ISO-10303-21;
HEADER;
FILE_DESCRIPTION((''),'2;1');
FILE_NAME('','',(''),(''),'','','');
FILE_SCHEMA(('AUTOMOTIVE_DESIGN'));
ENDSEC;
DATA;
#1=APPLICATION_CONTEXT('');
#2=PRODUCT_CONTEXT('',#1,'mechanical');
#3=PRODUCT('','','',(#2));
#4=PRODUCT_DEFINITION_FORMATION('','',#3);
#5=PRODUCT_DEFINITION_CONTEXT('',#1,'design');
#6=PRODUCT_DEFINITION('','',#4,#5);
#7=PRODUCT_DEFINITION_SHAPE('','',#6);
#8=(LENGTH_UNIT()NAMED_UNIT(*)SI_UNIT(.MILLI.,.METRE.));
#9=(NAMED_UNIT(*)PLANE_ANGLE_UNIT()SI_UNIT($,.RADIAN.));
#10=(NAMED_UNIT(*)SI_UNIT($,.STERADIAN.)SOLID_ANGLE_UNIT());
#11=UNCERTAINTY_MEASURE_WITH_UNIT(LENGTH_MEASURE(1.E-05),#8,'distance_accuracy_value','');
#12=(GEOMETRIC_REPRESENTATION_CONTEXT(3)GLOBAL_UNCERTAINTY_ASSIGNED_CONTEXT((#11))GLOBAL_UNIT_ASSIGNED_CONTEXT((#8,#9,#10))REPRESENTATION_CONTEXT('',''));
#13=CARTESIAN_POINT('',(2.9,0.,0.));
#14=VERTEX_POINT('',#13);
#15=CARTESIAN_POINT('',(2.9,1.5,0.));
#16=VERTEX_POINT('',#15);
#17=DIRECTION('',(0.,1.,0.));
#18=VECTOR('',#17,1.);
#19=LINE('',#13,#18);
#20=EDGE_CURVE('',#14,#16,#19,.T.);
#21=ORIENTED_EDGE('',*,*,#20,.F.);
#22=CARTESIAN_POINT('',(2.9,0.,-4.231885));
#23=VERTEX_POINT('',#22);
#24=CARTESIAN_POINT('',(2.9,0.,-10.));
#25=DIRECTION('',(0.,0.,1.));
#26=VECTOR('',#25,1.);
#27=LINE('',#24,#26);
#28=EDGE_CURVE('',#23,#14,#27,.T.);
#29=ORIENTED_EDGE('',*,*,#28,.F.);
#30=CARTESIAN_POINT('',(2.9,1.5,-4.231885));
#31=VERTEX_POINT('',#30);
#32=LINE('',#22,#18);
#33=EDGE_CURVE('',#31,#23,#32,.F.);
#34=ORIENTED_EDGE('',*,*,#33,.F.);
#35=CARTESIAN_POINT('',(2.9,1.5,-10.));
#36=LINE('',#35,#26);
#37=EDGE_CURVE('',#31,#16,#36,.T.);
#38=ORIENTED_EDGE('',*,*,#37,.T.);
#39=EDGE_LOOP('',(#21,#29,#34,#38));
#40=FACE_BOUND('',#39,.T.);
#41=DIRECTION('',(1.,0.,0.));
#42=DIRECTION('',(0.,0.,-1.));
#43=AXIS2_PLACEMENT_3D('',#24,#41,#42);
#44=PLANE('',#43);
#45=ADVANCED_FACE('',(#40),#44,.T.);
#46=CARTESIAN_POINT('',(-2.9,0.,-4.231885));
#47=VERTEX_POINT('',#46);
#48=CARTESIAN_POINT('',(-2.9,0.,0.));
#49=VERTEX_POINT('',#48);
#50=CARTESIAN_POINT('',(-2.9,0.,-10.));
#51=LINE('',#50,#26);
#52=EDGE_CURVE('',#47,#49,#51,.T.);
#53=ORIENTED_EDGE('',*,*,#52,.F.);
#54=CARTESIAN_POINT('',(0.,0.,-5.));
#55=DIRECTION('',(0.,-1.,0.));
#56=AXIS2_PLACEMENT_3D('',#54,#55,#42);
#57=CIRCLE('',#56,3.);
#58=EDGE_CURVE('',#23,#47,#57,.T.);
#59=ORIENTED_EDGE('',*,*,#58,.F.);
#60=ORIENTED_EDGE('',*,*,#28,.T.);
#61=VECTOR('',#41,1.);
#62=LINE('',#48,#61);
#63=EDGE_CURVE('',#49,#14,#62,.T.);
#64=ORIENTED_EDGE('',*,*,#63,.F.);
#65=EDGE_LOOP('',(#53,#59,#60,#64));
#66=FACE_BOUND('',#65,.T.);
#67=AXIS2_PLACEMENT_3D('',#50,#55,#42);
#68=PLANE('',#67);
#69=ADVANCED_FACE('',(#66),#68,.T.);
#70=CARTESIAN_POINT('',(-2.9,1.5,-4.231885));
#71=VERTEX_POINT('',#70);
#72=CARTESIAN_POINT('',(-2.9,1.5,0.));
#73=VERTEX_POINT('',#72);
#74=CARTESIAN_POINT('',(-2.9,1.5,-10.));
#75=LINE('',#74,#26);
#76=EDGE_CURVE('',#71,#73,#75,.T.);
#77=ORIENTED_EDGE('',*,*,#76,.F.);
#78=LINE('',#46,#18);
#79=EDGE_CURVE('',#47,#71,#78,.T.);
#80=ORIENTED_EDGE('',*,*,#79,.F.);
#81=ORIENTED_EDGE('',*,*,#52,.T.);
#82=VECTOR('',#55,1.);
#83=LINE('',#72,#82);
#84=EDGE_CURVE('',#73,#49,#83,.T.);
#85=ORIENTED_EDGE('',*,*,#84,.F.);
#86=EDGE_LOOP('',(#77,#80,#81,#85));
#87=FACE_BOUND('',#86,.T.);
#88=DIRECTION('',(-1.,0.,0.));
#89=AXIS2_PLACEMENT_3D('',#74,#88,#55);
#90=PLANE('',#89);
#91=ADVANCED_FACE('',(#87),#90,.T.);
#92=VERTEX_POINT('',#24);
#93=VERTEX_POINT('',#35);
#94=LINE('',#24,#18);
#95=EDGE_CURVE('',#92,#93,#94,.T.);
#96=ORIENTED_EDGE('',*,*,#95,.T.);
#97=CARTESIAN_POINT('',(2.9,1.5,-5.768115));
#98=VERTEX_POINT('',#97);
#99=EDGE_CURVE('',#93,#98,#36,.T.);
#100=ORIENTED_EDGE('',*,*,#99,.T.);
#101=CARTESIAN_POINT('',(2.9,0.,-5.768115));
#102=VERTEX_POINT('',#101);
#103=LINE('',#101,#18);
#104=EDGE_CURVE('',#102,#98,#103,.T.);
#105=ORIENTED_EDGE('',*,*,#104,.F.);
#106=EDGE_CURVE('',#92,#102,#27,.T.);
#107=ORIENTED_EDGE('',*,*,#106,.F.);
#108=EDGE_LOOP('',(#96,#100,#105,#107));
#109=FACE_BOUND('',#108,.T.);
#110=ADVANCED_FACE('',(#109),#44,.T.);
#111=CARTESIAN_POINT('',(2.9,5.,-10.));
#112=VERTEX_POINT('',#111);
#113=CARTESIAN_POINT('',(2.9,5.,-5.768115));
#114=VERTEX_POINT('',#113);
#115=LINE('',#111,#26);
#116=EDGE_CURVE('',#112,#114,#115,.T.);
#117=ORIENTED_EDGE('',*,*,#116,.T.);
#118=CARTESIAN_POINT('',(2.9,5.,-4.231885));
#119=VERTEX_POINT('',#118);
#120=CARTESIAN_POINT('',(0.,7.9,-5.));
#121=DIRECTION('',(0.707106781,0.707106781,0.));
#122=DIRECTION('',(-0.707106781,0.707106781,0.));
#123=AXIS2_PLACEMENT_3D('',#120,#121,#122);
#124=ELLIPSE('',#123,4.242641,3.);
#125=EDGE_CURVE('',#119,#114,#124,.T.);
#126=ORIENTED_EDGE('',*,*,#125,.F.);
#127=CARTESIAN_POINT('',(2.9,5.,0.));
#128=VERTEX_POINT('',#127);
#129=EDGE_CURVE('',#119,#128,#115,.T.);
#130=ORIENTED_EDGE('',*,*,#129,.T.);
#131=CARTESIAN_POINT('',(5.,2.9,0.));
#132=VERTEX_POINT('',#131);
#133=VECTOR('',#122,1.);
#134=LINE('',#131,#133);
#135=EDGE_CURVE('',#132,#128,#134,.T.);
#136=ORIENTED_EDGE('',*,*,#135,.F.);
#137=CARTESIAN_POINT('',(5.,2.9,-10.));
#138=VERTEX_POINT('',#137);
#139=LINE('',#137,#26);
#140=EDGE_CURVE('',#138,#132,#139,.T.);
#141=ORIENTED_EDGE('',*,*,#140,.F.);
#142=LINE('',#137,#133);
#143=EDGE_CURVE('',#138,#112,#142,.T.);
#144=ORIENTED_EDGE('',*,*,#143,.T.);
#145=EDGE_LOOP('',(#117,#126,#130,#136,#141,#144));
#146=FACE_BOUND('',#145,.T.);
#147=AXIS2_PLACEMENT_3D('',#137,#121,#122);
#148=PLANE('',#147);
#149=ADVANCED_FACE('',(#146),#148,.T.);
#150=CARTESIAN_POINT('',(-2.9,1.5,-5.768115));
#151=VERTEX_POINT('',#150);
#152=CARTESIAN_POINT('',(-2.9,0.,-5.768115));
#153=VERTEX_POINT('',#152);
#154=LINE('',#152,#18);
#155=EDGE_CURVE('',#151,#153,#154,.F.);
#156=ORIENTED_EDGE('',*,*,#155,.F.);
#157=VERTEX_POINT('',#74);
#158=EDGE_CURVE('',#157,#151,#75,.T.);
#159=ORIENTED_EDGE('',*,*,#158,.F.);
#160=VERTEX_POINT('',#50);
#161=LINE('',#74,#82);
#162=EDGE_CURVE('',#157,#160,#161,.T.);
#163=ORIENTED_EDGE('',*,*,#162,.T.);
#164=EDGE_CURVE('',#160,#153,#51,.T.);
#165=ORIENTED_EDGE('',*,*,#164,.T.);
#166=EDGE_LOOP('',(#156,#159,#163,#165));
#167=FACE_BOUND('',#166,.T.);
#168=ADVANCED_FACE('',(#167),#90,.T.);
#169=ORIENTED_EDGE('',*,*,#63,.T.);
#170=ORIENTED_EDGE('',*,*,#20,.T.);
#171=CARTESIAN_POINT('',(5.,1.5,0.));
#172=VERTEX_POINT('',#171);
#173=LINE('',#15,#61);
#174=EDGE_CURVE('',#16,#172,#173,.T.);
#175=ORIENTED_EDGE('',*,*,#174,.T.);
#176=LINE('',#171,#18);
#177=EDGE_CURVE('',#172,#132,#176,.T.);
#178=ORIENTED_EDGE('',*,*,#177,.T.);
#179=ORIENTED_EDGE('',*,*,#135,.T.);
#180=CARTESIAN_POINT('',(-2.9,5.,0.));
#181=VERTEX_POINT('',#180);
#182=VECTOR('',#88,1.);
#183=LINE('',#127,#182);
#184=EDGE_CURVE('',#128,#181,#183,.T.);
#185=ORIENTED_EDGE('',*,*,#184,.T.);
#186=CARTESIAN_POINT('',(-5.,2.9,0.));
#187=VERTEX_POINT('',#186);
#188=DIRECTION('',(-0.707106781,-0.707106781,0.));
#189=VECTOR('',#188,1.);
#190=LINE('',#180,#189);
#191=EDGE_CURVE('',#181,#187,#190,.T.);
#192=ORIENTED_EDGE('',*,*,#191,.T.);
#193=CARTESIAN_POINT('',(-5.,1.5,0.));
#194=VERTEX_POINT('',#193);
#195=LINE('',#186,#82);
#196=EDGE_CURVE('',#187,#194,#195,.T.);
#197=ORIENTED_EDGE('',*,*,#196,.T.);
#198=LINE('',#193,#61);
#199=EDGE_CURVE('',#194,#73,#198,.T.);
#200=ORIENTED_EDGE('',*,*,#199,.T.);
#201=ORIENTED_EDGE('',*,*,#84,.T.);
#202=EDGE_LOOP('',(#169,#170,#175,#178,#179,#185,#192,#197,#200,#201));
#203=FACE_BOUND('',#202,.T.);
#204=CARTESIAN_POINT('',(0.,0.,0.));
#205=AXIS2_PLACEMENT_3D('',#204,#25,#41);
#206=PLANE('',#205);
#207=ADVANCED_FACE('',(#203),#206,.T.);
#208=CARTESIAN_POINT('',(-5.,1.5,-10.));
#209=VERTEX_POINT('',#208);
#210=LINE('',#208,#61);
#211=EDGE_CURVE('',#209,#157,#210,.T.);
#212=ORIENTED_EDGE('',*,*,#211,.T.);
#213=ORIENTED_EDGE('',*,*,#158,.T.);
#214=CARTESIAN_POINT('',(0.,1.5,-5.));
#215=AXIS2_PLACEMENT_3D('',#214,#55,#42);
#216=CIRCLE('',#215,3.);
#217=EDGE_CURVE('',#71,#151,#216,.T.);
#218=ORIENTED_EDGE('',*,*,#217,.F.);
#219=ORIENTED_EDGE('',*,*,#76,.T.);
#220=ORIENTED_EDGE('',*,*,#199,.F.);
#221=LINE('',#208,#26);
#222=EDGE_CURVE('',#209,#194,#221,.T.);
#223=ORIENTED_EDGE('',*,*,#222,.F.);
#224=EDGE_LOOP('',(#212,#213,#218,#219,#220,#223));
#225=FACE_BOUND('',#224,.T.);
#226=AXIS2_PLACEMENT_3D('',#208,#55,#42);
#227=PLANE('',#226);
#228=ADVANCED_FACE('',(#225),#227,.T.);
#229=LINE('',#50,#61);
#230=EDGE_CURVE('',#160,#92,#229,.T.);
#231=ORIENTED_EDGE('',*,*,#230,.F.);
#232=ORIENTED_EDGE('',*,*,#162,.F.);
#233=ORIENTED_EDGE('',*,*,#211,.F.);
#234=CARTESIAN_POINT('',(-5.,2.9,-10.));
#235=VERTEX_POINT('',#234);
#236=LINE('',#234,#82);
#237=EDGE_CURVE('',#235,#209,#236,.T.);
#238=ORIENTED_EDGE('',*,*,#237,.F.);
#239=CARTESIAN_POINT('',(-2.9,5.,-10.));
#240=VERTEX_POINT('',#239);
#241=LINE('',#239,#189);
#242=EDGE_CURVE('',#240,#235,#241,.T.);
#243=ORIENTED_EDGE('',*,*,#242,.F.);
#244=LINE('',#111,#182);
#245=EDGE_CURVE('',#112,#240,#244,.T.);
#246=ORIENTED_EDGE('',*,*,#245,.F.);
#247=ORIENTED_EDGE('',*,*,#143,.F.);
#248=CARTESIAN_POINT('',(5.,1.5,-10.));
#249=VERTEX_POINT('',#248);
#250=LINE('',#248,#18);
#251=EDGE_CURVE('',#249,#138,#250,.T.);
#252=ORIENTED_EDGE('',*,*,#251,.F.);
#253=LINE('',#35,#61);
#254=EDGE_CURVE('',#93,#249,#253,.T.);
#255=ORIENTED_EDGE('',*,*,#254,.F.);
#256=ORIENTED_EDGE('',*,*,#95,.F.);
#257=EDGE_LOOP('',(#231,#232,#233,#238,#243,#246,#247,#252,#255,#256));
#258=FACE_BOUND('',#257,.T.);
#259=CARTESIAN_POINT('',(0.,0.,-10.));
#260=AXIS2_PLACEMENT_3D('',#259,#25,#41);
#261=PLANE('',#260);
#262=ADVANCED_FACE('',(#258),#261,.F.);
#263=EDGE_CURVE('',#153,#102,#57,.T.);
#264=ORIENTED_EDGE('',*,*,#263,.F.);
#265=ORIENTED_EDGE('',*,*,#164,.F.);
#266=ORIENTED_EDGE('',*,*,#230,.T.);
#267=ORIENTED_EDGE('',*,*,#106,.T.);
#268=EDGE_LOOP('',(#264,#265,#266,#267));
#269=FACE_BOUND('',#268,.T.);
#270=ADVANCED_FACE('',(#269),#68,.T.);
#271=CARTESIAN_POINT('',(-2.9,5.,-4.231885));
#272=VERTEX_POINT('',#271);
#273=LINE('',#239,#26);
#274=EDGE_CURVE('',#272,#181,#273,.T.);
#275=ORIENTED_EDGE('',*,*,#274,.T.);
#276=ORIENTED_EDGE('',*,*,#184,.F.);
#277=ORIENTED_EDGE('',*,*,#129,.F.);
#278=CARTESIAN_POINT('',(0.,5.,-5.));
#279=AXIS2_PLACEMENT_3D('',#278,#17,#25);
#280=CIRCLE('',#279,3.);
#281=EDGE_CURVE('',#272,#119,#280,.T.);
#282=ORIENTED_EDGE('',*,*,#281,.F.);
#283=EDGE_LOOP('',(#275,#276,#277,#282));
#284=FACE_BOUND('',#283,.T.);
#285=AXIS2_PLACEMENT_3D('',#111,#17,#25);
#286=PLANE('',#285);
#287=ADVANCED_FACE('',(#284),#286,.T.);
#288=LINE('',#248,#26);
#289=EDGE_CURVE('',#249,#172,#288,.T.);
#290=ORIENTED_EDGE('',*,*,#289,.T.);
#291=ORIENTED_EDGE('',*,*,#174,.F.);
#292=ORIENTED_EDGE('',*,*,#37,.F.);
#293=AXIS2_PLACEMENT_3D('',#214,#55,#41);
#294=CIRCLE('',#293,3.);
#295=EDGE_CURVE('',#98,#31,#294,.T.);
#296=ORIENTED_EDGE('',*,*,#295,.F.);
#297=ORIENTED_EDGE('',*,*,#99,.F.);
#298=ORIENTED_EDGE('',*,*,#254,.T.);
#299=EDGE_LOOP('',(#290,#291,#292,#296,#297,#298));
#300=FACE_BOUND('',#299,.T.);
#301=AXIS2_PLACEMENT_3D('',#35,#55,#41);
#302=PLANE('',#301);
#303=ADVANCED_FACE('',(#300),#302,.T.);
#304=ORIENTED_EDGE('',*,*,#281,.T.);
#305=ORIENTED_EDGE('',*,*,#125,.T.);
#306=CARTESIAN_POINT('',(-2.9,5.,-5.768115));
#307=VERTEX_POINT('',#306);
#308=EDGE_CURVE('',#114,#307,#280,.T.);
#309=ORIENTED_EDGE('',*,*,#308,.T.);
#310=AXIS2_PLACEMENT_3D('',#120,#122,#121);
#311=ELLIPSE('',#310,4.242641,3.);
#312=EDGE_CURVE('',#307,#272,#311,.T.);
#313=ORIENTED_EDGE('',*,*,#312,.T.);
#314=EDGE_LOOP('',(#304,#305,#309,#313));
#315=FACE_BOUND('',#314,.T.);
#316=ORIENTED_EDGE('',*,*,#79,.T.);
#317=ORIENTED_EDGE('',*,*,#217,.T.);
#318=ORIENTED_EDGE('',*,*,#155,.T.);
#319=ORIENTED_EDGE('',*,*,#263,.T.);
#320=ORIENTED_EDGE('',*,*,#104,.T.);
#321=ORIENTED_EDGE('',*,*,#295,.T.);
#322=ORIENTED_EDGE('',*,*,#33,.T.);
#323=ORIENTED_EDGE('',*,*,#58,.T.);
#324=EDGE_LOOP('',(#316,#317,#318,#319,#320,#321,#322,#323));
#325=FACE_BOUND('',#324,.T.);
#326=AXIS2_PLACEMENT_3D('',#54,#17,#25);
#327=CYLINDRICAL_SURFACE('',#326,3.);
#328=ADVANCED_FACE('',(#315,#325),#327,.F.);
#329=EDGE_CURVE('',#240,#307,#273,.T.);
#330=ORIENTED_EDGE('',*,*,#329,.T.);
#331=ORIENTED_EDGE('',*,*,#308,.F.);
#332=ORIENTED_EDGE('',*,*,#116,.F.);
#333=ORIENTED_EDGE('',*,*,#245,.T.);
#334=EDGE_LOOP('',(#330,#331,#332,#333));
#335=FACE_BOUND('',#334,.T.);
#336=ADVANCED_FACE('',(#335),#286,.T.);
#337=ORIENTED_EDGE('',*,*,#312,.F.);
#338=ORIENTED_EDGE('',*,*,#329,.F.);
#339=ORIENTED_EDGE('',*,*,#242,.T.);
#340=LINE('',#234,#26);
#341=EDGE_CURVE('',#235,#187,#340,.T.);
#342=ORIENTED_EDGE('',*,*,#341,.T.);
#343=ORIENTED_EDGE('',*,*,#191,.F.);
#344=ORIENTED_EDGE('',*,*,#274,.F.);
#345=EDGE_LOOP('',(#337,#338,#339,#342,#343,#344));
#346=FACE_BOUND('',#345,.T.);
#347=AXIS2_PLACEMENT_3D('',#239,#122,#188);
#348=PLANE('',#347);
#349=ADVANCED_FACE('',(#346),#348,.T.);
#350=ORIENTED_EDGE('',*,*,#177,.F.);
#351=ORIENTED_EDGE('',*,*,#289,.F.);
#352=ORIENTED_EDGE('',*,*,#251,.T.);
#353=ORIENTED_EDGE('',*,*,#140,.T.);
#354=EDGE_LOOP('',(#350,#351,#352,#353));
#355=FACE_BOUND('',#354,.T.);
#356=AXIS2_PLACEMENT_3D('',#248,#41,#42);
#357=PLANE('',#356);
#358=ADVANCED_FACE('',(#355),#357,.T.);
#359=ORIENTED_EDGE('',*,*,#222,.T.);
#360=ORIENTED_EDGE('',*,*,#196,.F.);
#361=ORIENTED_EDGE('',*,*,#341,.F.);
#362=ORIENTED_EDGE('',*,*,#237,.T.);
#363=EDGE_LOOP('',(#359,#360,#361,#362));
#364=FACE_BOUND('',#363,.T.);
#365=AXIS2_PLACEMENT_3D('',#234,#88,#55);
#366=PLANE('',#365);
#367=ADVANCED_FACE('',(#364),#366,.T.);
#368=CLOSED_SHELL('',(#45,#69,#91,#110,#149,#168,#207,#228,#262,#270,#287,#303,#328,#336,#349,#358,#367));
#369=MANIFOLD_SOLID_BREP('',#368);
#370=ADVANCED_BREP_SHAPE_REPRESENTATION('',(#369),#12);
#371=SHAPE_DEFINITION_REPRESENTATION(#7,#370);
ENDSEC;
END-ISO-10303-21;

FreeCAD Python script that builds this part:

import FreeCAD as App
import Part
import Sketcher
from FreeCAD import Vector

doc = App.newDocument("Part")
params = doc.addObject("Spreadsheet::Sheet", "Params")
for row, (alias, value) in enumerate([
    ("sketch1_width", "5.8 mm"),
    ("sketch1_width2", "2.1 mm"),
    ("sketch1_height", "1.5 mm"),
    ("sketch1_height2", "1.4 mm"),
    ("pad1_length", "10 mm"),
    ("sketch2_diameter", "6 mm"),
], start=1):
    params.set(f"A{row}", alias)
    params.set(f"B{row}", "=" + value)
    params.setAlias(f"B{row}", alias)

body = doc.addObject("PartDesign::Body", "Body")

sketch1 = doc.addObject("Sketcher::SketchObject", "Sketch")
body.addObject(sketch1)
sketch1.AttachmentSupport = (doc.XY_Plane, [""])
sketch1.MapMode = "FlatFace"
sketch1.addGeometry([
    Part.LineSegment(Vector(-2.9, 0, 0), Vector(2.9, 0, 0)),
    Part.LineSegment(Vector(2.9, 0, 0), Vector(2.9, 1.5, 0)),
    Part.LineSegment(Vector(2.9, 1.5, 0), Vector(5, 1.5, 0)),
    Part.LineSegment(Vector(5, 1.5, 0), Vector(5, 2.9, 0)),
    Part.LineSegment(Vector(5, 2.9, 0), Vector(2.9, 5, 0)),
    Part.LineSegment(Vector(2.9, 5, 0), Vector(-2.9, 5, 0)),
    Part.LineSegment(Vector(-2.9, 5, 0), Vector(-5, 2.9, 0)),
    Part.LineSegment(Vector(-5, 2.9, 0), Vector(-5, 1.5, 0)),
    Part.LineSegment(Vector(-5, 1.5, 0), Vector(-2.9, 1.5, 0)),
    Part.LineSegment(Vector(-2.9, 1.5, 0), Vector(-2.9, 0, 0)),
], False)
sketch1.addConstraint([
    Sketcher.Constraint("Coincident", 0, 2, 1, 1),
    Sketcher.Constraint("Coincident", 1, 2, 2, 1),
    Sketcher.Constraint("Coincident", 2, 2, 3, 1),
    Sketcher.Constraint("Coincident", 3, 2, 4, 1),
    Sketcher.Constraint("Coincident", 4, 2, 5, 1),
    Sketcher.Constraint("Coincident", 5, 2, 6, 1),
    Sketcher.Constraint("Coincident", 6, 2, 7, 1),
    Sketcher.Constraint("Coincident", 7, 2, 8, 1),
    Sketcher.Constraint("Coincident", 8, 2, 9, 1),
    Sketcher.Constraint("Coincident", 9, 2, 0, 1),
    Sketcher.Constraint("Horizontal", 0),
    Sketcher.Constraint("Vertical", 1),
    Sketcher.Constraint("Horizontal", 2),
    Sketcher.Constraint("Vertical", 3),
    Sketcher.Constraint("Horizontal", 5),
    Sketcher.Constraint("Vertical", 7),
    Sketcher.Constraint("Horizontal", 8),
    Sketcher.Constraint("Vertical", 9),
    Sketcher.Constraint("Symmetric", 0, 2, 9, 2, -1, 1),
    Sketcher.Constraint("Symmetric", 3, 2, 6, 2, -2),
    Sketcher.Constraint("Perpendicular", 4, 6),
    Sketcher.Constraint("Horizontal", 2, 2, 7, 2),
    Sketcher.Constraint("Vertical", 1, 2, 4, 2),
    Sketcher.Constraint("Vertical", 5, 2, 8, 2),
    Sketcher.Constraint("DistanceX", 0, 1, 0, 2, 5.8),
    Sketcher.Constraint("DistanceX", 2, 1, 2, 2, 2.1),
    Sketcher.Constraint("DistanceY", 1, 1, 1, 2, 1.5),
    Sketcher.Constraint("DistanceY", 3, 1, 3, 2, 1.4),
])
sketch1.setExpression("Constraints[24]", "Params.sketch1_width")
sketch1.setExpression("Constraints[25]", "Params.sketch1_width2")
sketch1.setExpression("Constraints[26]", "Params.sketch1_height")
sketch1.setExpression("Constraints[27]", "Params.sketch1_height2")
pad1 = doc.addObject("PartDesign::Pad", "Pad")
body.addObject(pad1)
pad1.Profile = sketch1
pad1.setExpression("Length", "Params.pad1_length")
pad1.Reversed = True

sketch2 = doc.addObject("Sketcher::SketchObject", "Sketch001")
body.addObject(sketch2)
sketch2.AttachmentSupport = (doc.XZ_Plane, [""])
sketch2.MapMode = "FlatFace"
sketch2.AttachmentOffset = App.Placement(Vector(0, 0, -5), App.Rotation())
sketch2.addGeometry(Part.Circle(Vector(0, -5, 0), Vector(0, 0, 1), 3), False)
sketch2.addConstraint([
    Sketcher.Constraint("PointOnObject", 0, 3, -2),
    Sketcher.Constraint("Diameter", 0, 6.0),
    Sketcher.Constraint("DistanceY", 0, 3, -1, 1, 5.0),
])
sketch2.setExpression("Constraints[1]", "Params.sketch2_diameter")
pocket1 = doc.addObject("PartDesign::Pocket", "Pocket")
body.addObject(pocket1)
pocket1.Profile = sketch2
pocket1.Type = "ThroughAll"
pocket1.Reversed = True

doc.recompute()
